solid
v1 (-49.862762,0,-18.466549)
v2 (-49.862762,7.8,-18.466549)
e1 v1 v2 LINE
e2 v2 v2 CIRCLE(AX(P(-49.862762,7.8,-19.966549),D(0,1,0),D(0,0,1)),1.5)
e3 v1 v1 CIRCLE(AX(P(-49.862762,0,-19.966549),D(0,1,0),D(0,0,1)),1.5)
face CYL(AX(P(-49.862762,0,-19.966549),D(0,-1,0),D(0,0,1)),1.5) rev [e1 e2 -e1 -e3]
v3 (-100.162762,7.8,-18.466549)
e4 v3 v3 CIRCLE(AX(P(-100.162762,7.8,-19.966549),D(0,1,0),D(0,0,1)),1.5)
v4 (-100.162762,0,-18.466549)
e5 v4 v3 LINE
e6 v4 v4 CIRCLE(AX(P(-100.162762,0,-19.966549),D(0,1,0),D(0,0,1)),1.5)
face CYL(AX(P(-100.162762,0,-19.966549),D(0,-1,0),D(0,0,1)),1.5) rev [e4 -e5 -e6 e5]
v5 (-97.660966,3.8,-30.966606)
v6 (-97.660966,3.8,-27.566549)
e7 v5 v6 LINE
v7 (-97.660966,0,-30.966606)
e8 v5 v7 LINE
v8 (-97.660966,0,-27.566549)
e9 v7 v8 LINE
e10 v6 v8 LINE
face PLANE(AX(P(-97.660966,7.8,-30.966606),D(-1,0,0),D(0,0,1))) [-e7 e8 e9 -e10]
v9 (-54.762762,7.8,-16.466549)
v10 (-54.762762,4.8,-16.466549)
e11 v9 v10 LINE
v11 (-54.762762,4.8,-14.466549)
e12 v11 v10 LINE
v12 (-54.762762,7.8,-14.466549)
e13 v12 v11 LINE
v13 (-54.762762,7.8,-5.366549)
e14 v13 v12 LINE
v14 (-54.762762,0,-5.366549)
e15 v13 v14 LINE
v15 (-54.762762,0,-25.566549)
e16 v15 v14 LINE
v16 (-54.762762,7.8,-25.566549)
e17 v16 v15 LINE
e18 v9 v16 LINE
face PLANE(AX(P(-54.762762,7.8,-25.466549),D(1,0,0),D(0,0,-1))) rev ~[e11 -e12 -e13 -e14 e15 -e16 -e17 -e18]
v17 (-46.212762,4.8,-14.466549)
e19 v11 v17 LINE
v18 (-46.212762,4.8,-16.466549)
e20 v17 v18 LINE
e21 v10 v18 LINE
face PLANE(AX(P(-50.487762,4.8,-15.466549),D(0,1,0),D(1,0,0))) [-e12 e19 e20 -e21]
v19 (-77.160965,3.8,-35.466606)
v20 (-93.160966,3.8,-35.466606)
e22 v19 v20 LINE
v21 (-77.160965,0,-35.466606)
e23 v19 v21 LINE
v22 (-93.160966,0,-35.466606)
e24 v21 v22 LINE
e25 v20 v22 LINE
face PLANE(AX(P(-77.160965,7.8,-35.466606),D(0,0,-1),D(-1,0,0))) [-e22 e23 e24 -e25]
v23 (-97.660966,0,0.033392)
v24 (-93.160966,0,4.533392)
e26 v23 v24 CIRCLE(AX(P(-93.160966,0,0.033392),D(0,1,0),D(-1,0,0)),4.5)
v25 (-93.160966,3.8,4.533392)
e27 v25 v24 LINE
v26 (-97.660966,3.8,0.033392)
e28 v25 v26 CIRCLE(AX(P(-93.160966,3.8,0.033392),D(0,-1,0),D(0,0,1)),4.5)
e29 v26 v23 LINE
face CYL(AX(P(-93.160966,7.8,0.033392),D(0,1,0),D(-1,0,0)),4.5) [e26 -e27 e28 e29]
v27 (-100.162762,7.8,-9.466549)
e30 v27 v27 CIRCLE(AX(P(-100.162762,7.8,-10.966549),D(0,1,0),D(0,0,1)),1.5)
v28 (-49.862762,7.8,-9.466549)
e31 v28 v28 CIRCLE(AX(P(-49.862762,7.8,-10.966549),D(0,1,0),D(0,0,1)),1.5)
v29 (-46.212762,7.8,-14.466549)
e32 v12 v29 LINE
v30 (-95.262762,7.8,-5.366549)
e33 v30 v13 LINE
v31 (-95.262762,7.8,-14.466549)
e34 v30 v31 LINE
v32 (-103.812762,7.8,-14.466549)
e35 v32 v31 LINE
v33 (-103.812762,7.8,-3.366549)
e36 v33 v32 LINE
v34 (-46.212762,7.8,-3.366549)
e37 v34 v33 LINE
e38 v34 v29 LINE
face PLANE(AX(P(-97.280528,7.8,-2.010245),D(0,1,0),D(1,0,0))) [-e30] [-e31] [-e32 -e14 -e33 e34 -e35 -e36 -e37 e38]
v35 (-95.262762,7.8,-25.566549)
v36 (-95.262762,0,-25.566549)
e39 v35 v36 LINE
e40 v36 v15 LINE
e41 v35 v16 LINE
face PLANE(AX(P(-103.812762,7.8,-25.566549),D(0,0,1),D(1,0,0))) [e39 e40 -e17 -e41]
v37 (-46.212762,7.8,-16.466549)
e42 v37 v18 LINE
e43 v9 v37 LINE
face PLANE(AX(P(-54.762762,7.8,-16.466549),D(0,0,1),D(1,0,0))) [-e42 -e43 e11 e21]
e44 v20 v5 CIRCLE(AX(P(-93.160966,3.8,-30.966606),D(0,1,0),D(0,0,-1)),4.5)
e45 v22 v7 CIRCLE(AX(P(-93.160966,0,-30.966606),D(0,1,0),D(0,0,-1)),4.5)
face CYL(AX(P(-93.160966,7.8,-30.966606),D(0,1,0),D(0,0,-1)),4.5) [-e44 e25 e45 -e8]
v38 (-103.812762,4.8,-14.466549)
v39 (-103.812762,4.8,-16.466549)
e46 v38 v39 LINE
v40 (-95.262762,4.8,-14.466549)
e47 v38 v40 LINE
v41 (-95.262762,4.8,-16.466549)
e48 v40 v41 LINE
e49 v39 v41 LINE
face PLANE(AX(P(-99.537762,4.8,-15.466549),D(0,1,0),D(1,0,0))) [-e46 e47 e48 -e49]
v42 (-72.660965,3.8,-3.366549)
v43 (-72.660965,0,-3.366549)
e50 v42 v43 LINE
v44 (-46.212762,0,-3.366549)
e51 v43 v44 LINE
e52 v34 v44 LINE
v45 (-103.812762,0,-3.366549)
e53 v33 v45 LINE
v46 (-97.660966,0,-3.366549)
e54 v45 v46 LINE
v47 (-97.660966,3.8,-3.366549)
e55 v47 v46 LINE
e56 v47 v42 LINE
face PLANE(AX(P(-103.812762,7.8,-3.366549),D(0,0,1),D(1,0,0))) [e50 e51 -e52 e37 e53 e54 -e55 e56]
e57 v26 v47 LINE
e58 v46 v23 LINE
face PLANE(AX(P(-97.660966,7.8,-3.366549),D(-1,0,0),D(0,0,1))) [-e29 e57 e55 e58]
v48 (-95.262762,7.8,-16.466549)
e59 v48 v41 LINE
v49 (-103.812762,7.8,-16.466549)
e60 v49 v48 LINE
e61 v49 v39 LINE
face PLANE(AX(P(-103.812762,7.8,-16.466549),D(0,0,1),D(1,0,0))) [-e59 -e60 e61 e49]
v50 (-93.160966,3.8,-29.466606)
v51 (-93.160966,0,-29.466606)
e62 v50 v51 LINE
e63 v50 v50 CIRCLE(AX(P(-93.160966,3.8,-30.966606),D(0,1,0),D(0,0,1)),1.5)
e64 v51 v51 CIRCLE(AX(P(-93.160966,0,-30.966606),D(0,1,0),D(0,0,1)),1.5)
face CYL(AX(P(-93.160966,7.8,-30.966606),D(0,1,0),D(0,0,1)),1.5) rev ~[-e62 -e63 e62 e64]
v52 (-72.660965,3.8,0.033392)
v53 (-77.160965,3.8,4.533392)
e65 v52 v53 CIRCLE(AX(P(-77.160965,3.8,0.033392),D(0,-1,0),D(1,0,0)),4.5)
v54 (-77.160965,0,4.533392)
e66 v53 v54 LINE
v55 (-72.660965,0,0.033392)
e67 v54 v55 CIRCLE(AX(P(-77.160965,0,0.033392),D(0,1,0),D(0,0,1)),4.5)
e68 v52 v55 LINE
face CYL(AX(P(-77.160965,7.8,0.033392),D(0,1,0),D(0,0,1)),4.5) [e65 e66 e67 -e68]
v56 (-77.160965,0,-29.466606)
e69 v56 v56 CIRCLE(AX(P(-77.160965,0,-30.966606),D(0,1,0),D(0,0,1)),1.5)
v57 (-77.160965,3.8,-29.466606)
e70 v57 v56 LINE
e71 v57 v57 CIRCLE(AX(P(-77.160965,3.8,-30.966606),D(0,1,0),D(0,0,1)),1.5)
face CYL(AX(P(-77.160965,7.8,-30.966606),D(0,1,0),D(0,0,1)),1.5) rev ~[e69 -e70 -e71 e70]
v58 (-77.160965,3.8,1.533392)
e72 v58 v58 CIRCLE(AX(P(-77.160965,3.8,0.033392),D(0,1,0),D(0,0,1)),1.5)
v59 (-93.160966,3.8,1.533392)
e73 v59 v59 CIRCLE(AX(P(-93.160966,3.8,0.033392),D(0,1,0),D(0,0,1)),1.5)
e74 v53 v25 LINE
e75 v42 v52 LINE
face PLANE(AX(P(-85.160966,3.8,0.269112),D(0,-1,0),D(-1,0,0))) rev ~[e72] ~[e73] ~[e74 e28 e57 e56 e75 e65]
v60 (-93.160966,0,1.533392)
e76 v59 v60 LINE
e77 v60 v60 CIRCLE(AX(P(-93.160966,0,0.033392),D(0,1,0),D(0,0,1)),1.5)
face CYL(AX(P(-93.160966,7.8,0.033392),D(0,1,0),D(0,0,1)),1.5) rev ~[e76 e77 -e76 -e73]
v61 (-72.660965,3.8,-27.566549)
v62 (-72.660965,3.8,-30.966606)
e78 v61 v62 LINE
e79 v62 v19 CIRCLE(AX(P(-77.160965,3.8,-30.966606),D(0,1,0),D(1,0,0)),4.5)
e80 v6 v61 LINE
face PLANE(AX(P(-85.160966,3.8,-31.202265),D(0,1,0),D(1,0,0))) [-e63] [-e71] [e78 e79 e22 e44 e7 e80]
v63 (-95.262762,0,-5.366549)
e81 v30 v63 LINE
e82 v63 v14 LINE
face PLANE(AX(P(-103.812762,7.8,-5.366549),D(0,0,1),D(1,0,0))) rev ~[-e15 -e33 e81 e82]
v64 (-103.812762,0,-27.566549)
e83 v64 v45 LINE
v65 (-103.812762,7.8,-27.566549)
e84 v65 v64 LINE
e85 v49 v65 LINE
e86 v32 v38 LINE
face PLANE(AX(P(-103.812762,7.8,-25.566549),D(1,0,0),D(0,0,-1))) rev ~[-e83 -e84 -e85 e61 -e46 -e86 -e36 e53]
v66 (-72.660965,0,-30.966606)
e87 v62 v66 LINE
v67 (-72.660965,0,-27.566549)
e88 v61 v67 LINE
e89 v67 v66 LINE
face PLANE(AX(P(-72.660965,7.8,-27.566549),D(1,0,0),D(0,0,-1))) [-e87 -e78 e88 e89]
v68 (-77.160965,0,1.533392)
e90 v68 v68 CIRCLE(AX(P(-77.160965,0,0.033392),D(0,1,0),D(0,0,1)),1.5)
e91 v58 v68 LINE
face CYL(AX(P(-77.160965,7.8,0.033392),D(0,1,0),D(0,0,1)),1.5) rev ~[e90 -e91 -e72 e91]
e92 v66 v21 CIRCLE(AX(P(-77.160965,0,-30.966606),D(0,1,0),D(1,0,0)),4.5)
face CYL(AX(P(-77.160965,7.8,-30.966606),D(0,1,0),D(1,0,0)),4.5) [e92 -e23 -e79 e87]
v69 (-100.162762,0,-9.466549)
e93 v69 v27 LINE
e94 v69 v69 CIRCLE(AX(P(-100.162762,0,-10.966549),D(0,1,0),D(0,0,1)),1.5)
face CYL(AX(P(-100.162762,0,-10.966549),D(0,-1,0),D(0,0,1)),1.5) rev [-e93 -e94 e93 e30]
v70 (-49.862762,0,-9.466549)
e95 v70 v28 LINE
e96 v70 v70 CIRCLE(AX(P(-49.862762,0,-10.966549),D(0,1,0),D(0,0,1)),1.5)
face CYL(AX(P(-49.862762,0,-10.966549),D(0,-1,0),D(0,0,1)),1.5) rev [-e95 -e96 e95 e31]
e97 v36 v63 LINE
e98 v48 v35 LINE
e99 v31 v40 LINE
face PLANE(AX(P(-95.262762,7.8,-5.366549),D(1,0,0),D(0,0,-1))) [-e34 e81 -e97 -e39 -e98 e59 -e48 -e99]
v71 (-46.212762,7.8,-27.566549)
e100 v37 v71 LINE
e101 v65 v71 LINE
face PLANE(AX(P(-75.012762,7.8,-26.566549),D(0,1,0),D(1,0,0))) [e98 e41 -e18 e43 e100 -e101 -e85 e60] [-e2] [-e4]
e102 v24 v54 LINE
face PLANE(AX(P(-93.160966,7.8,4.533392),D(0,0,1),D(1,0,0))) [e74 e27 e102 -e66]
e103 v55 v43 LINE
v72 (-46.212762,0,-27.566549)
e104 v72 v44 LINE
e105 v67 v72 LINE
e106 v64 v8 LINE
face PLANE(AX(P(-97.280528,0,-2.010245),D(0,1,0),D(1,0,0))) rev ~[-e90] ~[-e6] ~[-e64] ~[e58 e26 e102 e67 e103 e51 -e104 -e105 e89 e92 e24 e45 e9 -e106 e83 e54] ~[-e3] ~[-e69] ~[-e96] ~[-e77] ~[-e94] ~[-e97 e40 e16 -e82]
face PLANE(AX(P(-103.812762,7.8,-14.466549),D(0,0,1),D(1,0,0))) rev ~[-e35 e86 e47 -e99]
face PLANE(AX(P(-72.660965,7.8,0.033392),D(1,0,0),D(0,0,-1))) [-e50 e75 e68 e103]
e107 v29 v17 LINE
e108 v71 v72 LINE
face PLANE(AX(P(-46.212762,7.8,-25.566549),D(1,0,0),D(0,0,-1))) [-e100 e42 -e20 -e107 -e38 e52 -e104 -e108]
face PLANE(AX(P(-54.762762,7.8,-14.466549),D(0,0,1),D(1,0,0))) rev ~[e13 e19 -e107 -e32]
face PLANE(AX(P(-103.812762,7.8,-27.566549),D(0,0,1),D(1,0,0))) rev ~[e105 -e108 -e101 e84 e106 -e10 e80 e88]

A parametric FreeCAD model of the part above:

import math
import FreeCAD as App
import Part
import Sketcher

V = App.Vector


def add_polygon(sketch, points):
    """Adds a closed chain of lines whose ends are joined by coincident constraints."""
    first, n = sketch.GeometryCount, len(points)
    for a, b in zip(points, points[1:] + points[:1]):
        sketch.addGeometry(Part.LineSegment(App.Vector(*a, 0), App.Vector(*b, 0)), False)
    for i in range(n):
        sketch.addConstraint(Sketcher.Constraint("Coincident", first + i, 2, first + (i + 1) % n, 1))

doc = App.newDocument("Part")
body = doc.addObject("PartDesign::Body", "Body")

sketch1 = body.newObject("Sketcher::SketchObject", "Sketch")
sketch1.AttachmentSupport = (doc.getObject("XZ_Plane"), [""])
sketch1.MapMode = "FlatFace"
add_polygon(sketch1, [(-54.8, -25.5), (-54.8, -5.5), (-48.2, -5.5), (-48.2, -25.5)])
sketch1.addGeometry(Part.Circle(V(-49.9, -11, 0), V(0, 0, 1), 1.5), False)
sketch1.addGeometry(Part.Circle(V(-49.9, -20, 0), V(0, 0, 1), 1.5), False)
sketch1.addConstraint([
    Sketcher.Constraint("Vertical", 0),
    Sketcher.Constraint("Horizontal", 1),
    Sketcher.Constraint("Vertical", 2),
    Sketcher.Constraint("Horizontal", 3),
    Sketcher.Constraint("Equal", 4, 5),
    Sketcher.Constraint("Vertical", 4, 3, 5, 3),
    Sketcher.Constraint("Diameter", 4, 3.0),
    Sketcher.Constraint("DistanceY", 0, 1, 0, 2, 20.0),
    Sketcher.Constraint("DistanceY", 5, 3, 4, 3, 9.0),
    Sketcher.Constraint("DistanceX", 1, 1, 1, 2, 6.55),
    Sketcher.Constraint("DistanceX", 0, 2, 4, 3, 4.9),
    Sketcher.Constraint("DistanceY", 4, 3, 0, 2, 5.5),
    Sketcher.Constraint("DistanceX", 4, 3, -1, 1, 49.862762),
    Sketcher.Constraint("DistanceY", 4, 3, -1, 1, 10.966549),
])
pad1 = body.newObject("PartDesign::Pad", "Pad")
pad1.Profile = sketch1
pad1.Length = 7.8
pad1.Reversed = True
body2 = doc.addObject("PartDesign::Body", "Body001")

sketch2 = body2.newObject("Sketcher::SketchObject", "Sketch001")
sketch2.AttachmentSupport = (doc.getObject("XZ_Plane001"), [""])
sketch2.MapMode = "FlatFace"
add_polygon(sketch2, [(-101.8, -5.5), (-95.3, -5.5), (-95.3, -25.5), (-101.8, -25.5)])
sketch2.addGeometry(Part.Circle(V(-100.2, -11, 0), V(0, 0, 1), 1.5), False)
sketch2.addGeometry(Part.Circle(V(-100.2, -20, 0), V(0, 0, 1), 1.5), False)
sketch2.addConstraint([
    Sketcher.Constraint("Horizontal", 0),
    Sketcher.Constraint("Vertical", 1),
    Sketcher.Constraint("Horizontal", 2),
    Sketcher.Constraint("Vertical", 3),
    Sketcher.Constraint("Equal", 4, 5),
    Sketcher.Constraint("Vertical", 4, 3, 5, 3),
    Sketcher.Constraint("Diameter", 4, 3.0),
    Sketcher.Constraint("DistanceY", 1, 2, 1, 1, 20.0),
    Sketcher.Constraint("DistanceY", 5, 3, 4, 3, 9.0),
    Sketcher.Constraint("DistanceX", 0, 1, 0, 2, 6.55),
    Sketcher.Constraint("DistanceX", 4, 3, 0, 2, 4.9),
    Sketcher.Constraint("DistanceY", 4, 3, 0, 2, 5.5),
    Sketcher.Constraint("DistanceX", 4, 3, -1, 1, 100.162762),
    Sketcher.Constraint("DistanceY", 4, 3, -1, 1, 10.966549),
])
pad2 = body2.newObject("PartDesign::Pad", "Pad001")
pad2.Profile = sketch2
pad2.Length = 7.8
pad2.Reversed = True
body.AllowCompound = True
doc.recompute()

boolean = body.newObject("PartDesign::Boolean", "Boolean")
boolean.Type = "Fuse"
boolean.addObjects([body2])

sketch3 = body.newObject("Sketcher::SketchObject", "Sketch002")
sketch3.AttachmentSupport = (doc.getObject("XZ_Plane"), [""])
sketch3.MapMode = "FlatFace"
sketch3.AttachmentOffset = App.Placement(V(0, 0, -7.8), App.Rotation())
add_polygon(sketch3, [(-48.2, -25.5), (-48.2, -5.5), (-46.2, -5.5), (-46.2, -25.5)])
add_polygon(sketch3, [(-103.8, -25.5), (-103.8, -5.5), (-101.8, -5.5), (-101.8, -25.5)])
sketch3.addConstraint([
    Sketcher.Constraint("Vertical", 0),
    Sketcher.Constraint("Horizontal", 1),
    Sketcher.Constraint("Vertical", 2),
    Sketcher.Constraint("Horizontal", 3),
    Sketcher.Constraint("Vertical", 4),
    Sketcher.Constraint("Horizontal", 5),
    Sketcher.Constraint("Vertical", 6),
    Sketcher.Constraint("Horizontal", 7),
    Sketcher.Constraint("Horizontal", 1, 2, 4, 2),
    Sketcher.Constraint("Horizontal", 3, 2, 6, 2),
    Sketcher.Constraint("Equal", 3, 5),
    Sketcher.Constraint("DistanceX", 1, 1, 1, 2, 2.0),
    Sketcher.Constraint("DistanceY", 0, 1, 0, 2, 20.0),
    Sketcher.Constraint("DistanceX", 4, 2, 0, 2, 55.6),
    Sketcher.Constraint("DistanceX", 0, 2, -1, 1, 48.212762),
    Sketcher.Constraint("DistanceY", 0, 2, -1, 1, 5.466549),
])
pad3 = body.newObject("PartDesign::Pad", "Pad002")
pad3.Profile = sketch3
pad3.Length = 7.8

sketch4 = body.newObject("Sketcher::SketchObject", "Sketch003")
sketch4.AttachmentSupport = (doc.getObject("XZ_Plane"), [""])
sketch4.MapMode = "FlatFace"
sketch4.AttachmentOffset = App.Placement(V(0, 0, -7.8), App.Rotation())
add_polygon(sketch4, [(-103.81, -5.47), (-103.81, -5.37), (-95.26, -5.37), (-95.26, -5.47)])
add_polygon(sketch4, [(-103.81, -25.57), (-103.81, -25.47), (-95.26, -25.47), (-95.26, -25.57)])
add_polygon(sketch4, [(-54.76, -25.57), (-54.76, -25.47), (-46.21, -25.47), (-46.21, -25.57)])
add_polygon(sketch4, [(-54.76, -5.47), (-54.76, -5.37), (-46.21, -5.37), (-46.21, -5.47)])
sketch4.addConstraint([
    Sketcher.Constraint("Vertical", 0),
    Sketcher.Constraint("Horizontal", 1),
    Sketcher.Constraint("Vertical", 2),
    Sketcher.Constraint("Horizontal", 3),
    Sketcher.Constraint("Vertical", 4),
    Sketcher.Constraint("Horizontal", 5),
    Sketcher.Constraint("Vertical", 6),
    Sketcher.Constraint("Horizontal", 7),
    Sketcher.Constraint("Vertical", 8),
    Sketcher.Constraint("Horizontal", 9),
    Sketcher.Constraint("Vertical", 10),
    Sketcher.Constraint("Horizontal", 11),
    Sketcher.Constraint("Vertical", 12),
    Sketcher.Constraint("Horizontal", 13),
    Sketcher.Constraint("Vertical", 14),
    Sketcher.Constraint("Horizontal", 15),
    Sketcher.Constraint("Horizontal", 5, 2, 8, 2),
    Sketcher.Constraint("Horizontal", 7, 2, 10, 2),
    Sketcher.Constraint("Horizontal", 1, 2, 12, 2),
    Sketcher.Constraint("Horizontal", 3, 2, 14, 2),
    Sketcher.Constraint("Vertical", 3, 2, 4, 2),
    Sketcher.Constraint("Vertical", 2, 2, 5, 2),
    Sketcher.Constraint("Vertical", 11, 2, 12, 2),
    Sketcher.Constraint("Vertical", 10, 2, 13, 2),
    Sketcher.Constraint("Equal", 7, 9),
    Sketcher.Constraint("Equal", 2, 4),
    Sketcher.Constraint("DistanceY", 0, 1, 0, 2, 0.1),
    Sketcher.Constraint("DistanceY", 4, 2, 3, 2, 20.0),
    Sketcher.Constraint("DistanceX", 1, 1, 1, 2, 8.55),
    Sketcher.Constraint("DistanceX", 5, 2, 8, 2, 40.5),
    Sketcher.Constraint("DistanceX", 0, 2, -1, 1, 103.812762),
    Sketcher.Constraint("DistanceY", 0, 2, -1, 1, 5.366549),
])
pad4 = body.newObject("PartDesign::Pad", "Pad003")
pad4.Profile = sketch4
pad4.Length = 7.8

sketch5 = body.newObject("Sketcher::SketchObject", "Sketch004")
sketch5.AttachmentSupport = (doc.getObject("XZ_Plane"), [""])
sketch5.MapMode = "FlatFace"
sketch5.AttachmentOffset = App.Placement(V(0, 0, -7.8), App.Rotation())
add_polygon(sketch5, [(-103.8, -27.6), (-103.8, -25.6), (-46.2, -25.6), (-46.2, -27.6)])
add_polygon(sketch5, [(-103.8, -5.4), (-103.8, -3.4), (-46.2, -3.4), (-46.2, -5.4)])
sketch5.addConstraint([
    Sketcher.Constraint("Vertical", 0),
    Sketcher.Constraint("Horizontal", 1),
    Sketcher.Constraint("Vertical", 2),
    Sketcher.Constraint("Horizontal", 3),
    Sketcher.Constraint("Vertical", 4),
    Sketcher.Constraint("Horizontal", 5),
    Sketcher.Constraint("Vertical", 6),
    Sketcher.Constraint("Horizontal", 7),
    Sketcher.Constraint("Vertical", 3, 2, 4, 2),
    Sketcher.Constraint("Vertical", 2, 2, 5, 2),
    Sketcher.Constraint("Equal", 2, 4),
    Sketcher.Constraint("DistanceY", 0, 1, 0, 2, 2.0),
    Sketcher.Constraint("DistanceX", 1, 1, 1, 2, 57.6),
    Sketcher.Constraint("DistanceY", 0, 2, 4, 2, 22.2),
    Sketcher.Constraint("DistanceX", 0, 2, -1, 1, 103.812762),
    Sketcher.Constraint("DistanceY", 0, 2, -1, 1, 25.566549),
])
pad5 = body.newObject("PartDesign::Pad", "Pad004")
pad5.Profile = sketch5
pad5.Length = 7.8

sketch6 = body.newObject("Sketcher::SketchObject", "Sketch005")
sketch6.AttachmentSupport = (doc.getObject("XZ_Plane"), [""])
sketch6.MapMode = "FlatFace"
sketch6.AttachmentOffset = App.Placement(V(0, 0, -7.8), App.Rotation())
add_polygon(sketch6, [(-103.8, -16.5), (-103.8, -14.5), (-95.3, -14.5), (-95.3, -16.5)])
add_polygon(sketch6, [(-54.8, -16.5), (-54.8, -14.5), (-46.2, -14.5), (-46.2, -16.5)])
sketch6.addConstraint([
    Sketcher.Constraint("Vertical", 0),
    Sketcher.Constraint("Horizontal", 1),
    Sketcher.Constraint("Vertical", 2),
    Sketcher.Constraint("Horizontal", 3),
    Sketcher.Constraint("Vertical", 4),
    Sketcher.Constraint("Horizontal", 5),
    Sketcher.Constraint("Vertical", 6),
    Sketcher.Constraint("Horizontal", 7),
    Sketcher.Constraint("Horizontal", 1, 2, 4, 2),
    Sketcher.Constraint("Horizontal", 3, 2, 6, 2),
    Sketcher.Constraint("Equal", 3, 5),
    Sketcher.Constraint("DistanceY", 0, 1, 0, 2, 2.0),
    Sketcher.Constraint("DistanceX", 1, 1, 1, 2, 8.55),
    Sketcher.Constraint("DistanceX", 1, 2, 4, 2, 40.5),
    Sketcher.Constraint("DistanceX", 0, 2, -1, 1, 103.812762),
    Sketcher.Constraint("DistanceY", 0, 2, -1, 1, 14.466549),
])
pocket1 = body.newObject("PartDesign::Pocket", "Pocket")
pocket1.Profile = sketch6
pocket1.Length = 3
pocket1.Reversed = True

sketch7 = body.newObject("Sketcher::SketchObject", "Sketch006")
sketch7.AttachmentSupport = (doc.getObject("XZ_Plane"), [""])
sketch7.MapMode = "FlatFace"
sketch7.AttachmentOffset = App.Placement(V(0, 0, -7.8), App.Rotation())
sketch7.addGeometry([
    Part.LineSegment(V(-97.7, -3.4, 0), V(-97.7, 0, 0)),
    Part.ArcOfCircle(Part.Circle(V(-93.2, 0, 0), V(0, 0, 1), 4.5), math.radians(90), math.radians(180)),
    Part.LineSegment(V(-93.2, 4.5, 0), V(-77.2, 4.5, 0)),
    Part.ArcOfCircle(Part.Circle(V(-77.2, 0, 0), V(0, 0, 1), 4.5), math.radians(0), math.radians(90)),
    Part.LineSegment(V(-72.7, 0, 0), V(-72.7, -3.4, 0)),
    Part.LineSegment(V(-72.7, -3.4, 0), V(-97.7, -3.4, 0)),
    Part.Circle(V(-93.2, 0, 0), V(0, 0, 1), 1.5),
    Part.Circle(V(-77.2, 0, 0), V(0, 0, 1), 1.5),
    Part.ArcOfCircle(Part.Circle(V(-77.2, -31, 0), V(0, 0, 1), 4.5), math.radians(-90), math.radians(0)),
    Part.LineSegment(V(-77.2, -35.5, 0), V(-93.2, -35.5, 0)),
    Part.ArcOfCircle(Part.Circle(V(-93.2, -31, 0), V(0, 0, 1), 4.5), math.radians(-180), math.radians(-90)),
    Part.LineSegment(V(-97.7, -31, 0), V(-97.7, -27.6, 0)),
    Part.LineSegment(V(-97.7, -27.6, 0), V(-72.7, -27.6, 0)),
    Part.LineSegment(V(-72.7, -27.6, 0), V(-72.7, -31, 0)),
    Part.Circle(V(-77.2, -31, 0), V(0, 0, 1), 1.5),
    Part.Circle(V(-93.2, -31, 0), V(0, 0, 1), 1.5),
], False)
sketch7.addConstraint([
    Sketcher.Constraint("Tangent", 0, 2, 1, 2),
    Sketcher.Constraint("Tangent", 1, 1, 2, 1),
    Sketcher.Constraint("Tangent", 2, 2, 3, 2),
    Sketcher.Constraint("Tangent", 3, 1, 4, 1),
    Sketcher.Constraint("Coincident", 4, 2, 5, 1),
    Sketcher.Constraint("Coincident", 5, 2, 0, 1),
    Sketcher.Constraint("Tangent", 8, 1, 9, 1),
    Sketcher.Constraint("Tangent", 9, 2, 10, 2),
    Sketcher.Constraint("Tangent", 10, 1, 11, 1),
    Sketcher.Constraint("Coincident", 11, 2, 12, 1),
    Sketcher.Constraint("Coincident", 12, 2, 13, 1),
    Sketcher.Constraint("Tangent", 13, 2, 8, 2),
    Sketcher.Constraint("Vertical", 0),
    Sketcher.Constraint("Horizontal", 2),
    Sketcher.Constraint("Vertical", 4),
    Sketcher.Constraint("Horizontal", 5),
    Sketcher.Constraint("Horizontal", 9),
    Sketcher.Constraint("Vertical", 11),
    Sketcher.Constraint("Horizontal", 12),
    Sketcher.Constraint("Vertical", 13),
    Sketcher.Constraint("Coincident", 6, 3, 1, 3),
    Sketcher.Constraint("Coincident", 7, 3, 3, 3),
    Sketcher.Constraint("Coincident", 14, 3, 8, 3),
    Sketcher.Constraint("Coincident", 15, 3, 10, 3),
    Sketcher.Constraint("Equal", 1, 3),
    Sketcher.Constraint("Equal", 6, 7),
    Sketcher.Constraint("Equal", 3, 8),
    Sketcher.Constraint("Equal", 8, 10),
    Sketcher.Constraint("Equal", 7, 14),
    Sketcher.Constraint("Equal", 14, 15),
    Sketcher.Constraint("Vertical", 7, 3, 8, 3),
    Sketcher.Constraint("Vertical", 6, 3, 10, 3),
    Sketcher.Constraint("Diameter", 6, 3.0),
    Sketcher.Constraint("Radius", 1, 4.5),
    Sketcher.Constraint("DistanceX", 2, 1, 2, 2, 16.000001),
    Sketcher.Constraint("DistanceY", 8, 3, 7, 3, 30.999998),
    Sketcher.Constraint("DistanceY", 0, 1, 0, 2, 3.399941),
    Sketcher.Constraint("DistanceY", 11, 1, 11, 2, 3.400057),
    Sketcher.Constraint("DistanceY", 4, 2, -1, 1, 3.366549),
    Sketcher.Constraint("DistanceX", 1, 3, -1, 1, 93.160966),
])
pad6 = body.newObject("PartDesign::Pad", "Pad005")
pad6.Profile = sketch7
pad6.Length = 7.8

sketch8 = body.newObject("Sketcher::SketchObject", "Sketch007")
sketch8.AttachmentSupport = (doc.getObject("XZ_Plane"), [""])
sketch8.MapMode = "FlatFace"
sketch8.AttachmentOffset = App.Placement(V(0, 0, -7.8), App.Rotation())
sketch8.addGeometry([
    Part.LineSegment(V(-72.7, -3.4, 0), V(-97.7, -3.4, 0)),
    Part.LineSegment(V(-97.7, -3.4, 0), V(-97.7, 0, 0)),
    Part.ArcOfCircle(Part.Circle(V(-93.2, 0, 0), V(0, 0, 1), 4.5), math.radians(90), math.radians(180)),
    Part.LineSegment(V(-93.2, 4.5, 0), V(-77.2, 4.5, 0)),
    Part.ArcOfCircle(Part.Circle(V(-77.2, 0, 0), V(0, 0, 1), 4.5), math.radians(0), math.radians(90)),
    Part.LineSegment(V(-72.7, 0, 0), V(-72.7, -3.4, 0)),
    Part.Circle(V(-77.2, 0, 0), V(0, 0, 1), 1.5),
    Part.Circle(V(-93.2, 0, 0), V(0, 0, 1), 1.5),
    Part.LineSegment(V(-77.2, -35.5, 0), V(-93.2, -35.5, 0)),
    Part.ArcOfCircle(Part.Circle(V(-93.2, -31, 0), V(0, 0, 1), 4.5), math.radians(-180), math.radians(-90)),
    Part.LineSegment(V(-97.7, -31, 0), V(-97.7, -27.6, 0)),
    Part.LineSegment(V(-97.7, -27.6, 0), V(-72.7, -27.6, 0)),
    Part.LineSegment(V(-72.7, -27.6, 0), V(-72.7, -31, 0)),
    Part.ArcOfCircle(Part.Circle(V(-77.2, -31, 0), V(0, 0, 1), 4.5), math.radians(-90), math.radians(0)),
], False)
sketch8.addConstraint([
    Sketcher.Constraint("Coincident", 0, 2, 1, 1),
    Sketcher.Constraint("Tangent", 1, 2, 2, 2),
    Sketcher.Constraint("Tangent", 2, 1, 3, 1),
    Sketcher.Constraint("Tangent", 3, 2, 4, 2),
    Sketcher.Constraint("Tangent", 4, 1, 5, 1),
    Sketcher.Constraint("Coincident", 5, 2, 0, 1),
    Sketcher.Constraint("Tangent", 8, 2, 9, 2),
    Sketcher.Constraint("Tangent", 9, 1, 10, 1),
    Sketcher.Constraint("Coincident", 10, 2, 11, 1),
    Sketcher.Constraint("Coincident", 11, 2, 12, 1),
    Sketcher.Constraint("Tangent", 12, 2, 13, 2),
    Sketcher.Constraint("Tangent", 13, 1, 8, 1),
    Sketcher.Constraint("Horizontal", 0),
    Sketcher.Constraint("Vertical", 1),
    Sketcher.Constraint("Horizontal", 3),
    Sketcher.Constraint("Vertical", 5),
    Sketcher.Constraint("Horizontal", 8),
    Sketcher.Constraint("Vertical", 10),
    Sketcher.Constraint("Horizontal", 11),
    Sketcher.Constraint("Vertical", 12),
    Sketcher.Constraint("Coincident", 6, 3, 4, 3),
    Sketcher.Constraint("Coincident", 7, 3, 2, 3),
    Sketcher.Constraint("Equal", 2, 4),
    Sketcher.Constraint("Equal", 6, 7),
    Sketcher.Constraint("Equal", 4, 9),
    Sketcher.Constraint("Equal", 9, 13),
    Sketcher.Constraint("Vertical", 7, 3, 9, 3),
    Sketcher.Constraint("Vertical", 6, 3, 13, 3),
    Sketcher.Constraint("Diameter", 6, 3.0),
    Sketcher.Constraint("Radius", 2, 4.5),
    Sketcher.Constraint("DistanceX", 0, 2, 0, 1, 25.000001),
    Sketcher.Constraint("DistanceY", 9, 3, 2, 3, 30.999998),
    Sketcher.Constraint("DistanceY", 10, 2, 0, 2, 24.2),
    Sketcher.Constraint("DistanceY", 1, 1, 1, 2, 3.399941),
    Sketcher.Constraint("DistanceY", 0, 2, -1, 1, 3.366549),
    Sketcher.Constraint("DistanceX", 2, 3, -1, 1, 93.160966),
])
pocket2 = body.newObject("PartDesign::Pocket", "Pocket001")
pocket2.Profile = sketch8
pocket2.Length = 4
pocket2.Reversed = True

doc.recompute()
